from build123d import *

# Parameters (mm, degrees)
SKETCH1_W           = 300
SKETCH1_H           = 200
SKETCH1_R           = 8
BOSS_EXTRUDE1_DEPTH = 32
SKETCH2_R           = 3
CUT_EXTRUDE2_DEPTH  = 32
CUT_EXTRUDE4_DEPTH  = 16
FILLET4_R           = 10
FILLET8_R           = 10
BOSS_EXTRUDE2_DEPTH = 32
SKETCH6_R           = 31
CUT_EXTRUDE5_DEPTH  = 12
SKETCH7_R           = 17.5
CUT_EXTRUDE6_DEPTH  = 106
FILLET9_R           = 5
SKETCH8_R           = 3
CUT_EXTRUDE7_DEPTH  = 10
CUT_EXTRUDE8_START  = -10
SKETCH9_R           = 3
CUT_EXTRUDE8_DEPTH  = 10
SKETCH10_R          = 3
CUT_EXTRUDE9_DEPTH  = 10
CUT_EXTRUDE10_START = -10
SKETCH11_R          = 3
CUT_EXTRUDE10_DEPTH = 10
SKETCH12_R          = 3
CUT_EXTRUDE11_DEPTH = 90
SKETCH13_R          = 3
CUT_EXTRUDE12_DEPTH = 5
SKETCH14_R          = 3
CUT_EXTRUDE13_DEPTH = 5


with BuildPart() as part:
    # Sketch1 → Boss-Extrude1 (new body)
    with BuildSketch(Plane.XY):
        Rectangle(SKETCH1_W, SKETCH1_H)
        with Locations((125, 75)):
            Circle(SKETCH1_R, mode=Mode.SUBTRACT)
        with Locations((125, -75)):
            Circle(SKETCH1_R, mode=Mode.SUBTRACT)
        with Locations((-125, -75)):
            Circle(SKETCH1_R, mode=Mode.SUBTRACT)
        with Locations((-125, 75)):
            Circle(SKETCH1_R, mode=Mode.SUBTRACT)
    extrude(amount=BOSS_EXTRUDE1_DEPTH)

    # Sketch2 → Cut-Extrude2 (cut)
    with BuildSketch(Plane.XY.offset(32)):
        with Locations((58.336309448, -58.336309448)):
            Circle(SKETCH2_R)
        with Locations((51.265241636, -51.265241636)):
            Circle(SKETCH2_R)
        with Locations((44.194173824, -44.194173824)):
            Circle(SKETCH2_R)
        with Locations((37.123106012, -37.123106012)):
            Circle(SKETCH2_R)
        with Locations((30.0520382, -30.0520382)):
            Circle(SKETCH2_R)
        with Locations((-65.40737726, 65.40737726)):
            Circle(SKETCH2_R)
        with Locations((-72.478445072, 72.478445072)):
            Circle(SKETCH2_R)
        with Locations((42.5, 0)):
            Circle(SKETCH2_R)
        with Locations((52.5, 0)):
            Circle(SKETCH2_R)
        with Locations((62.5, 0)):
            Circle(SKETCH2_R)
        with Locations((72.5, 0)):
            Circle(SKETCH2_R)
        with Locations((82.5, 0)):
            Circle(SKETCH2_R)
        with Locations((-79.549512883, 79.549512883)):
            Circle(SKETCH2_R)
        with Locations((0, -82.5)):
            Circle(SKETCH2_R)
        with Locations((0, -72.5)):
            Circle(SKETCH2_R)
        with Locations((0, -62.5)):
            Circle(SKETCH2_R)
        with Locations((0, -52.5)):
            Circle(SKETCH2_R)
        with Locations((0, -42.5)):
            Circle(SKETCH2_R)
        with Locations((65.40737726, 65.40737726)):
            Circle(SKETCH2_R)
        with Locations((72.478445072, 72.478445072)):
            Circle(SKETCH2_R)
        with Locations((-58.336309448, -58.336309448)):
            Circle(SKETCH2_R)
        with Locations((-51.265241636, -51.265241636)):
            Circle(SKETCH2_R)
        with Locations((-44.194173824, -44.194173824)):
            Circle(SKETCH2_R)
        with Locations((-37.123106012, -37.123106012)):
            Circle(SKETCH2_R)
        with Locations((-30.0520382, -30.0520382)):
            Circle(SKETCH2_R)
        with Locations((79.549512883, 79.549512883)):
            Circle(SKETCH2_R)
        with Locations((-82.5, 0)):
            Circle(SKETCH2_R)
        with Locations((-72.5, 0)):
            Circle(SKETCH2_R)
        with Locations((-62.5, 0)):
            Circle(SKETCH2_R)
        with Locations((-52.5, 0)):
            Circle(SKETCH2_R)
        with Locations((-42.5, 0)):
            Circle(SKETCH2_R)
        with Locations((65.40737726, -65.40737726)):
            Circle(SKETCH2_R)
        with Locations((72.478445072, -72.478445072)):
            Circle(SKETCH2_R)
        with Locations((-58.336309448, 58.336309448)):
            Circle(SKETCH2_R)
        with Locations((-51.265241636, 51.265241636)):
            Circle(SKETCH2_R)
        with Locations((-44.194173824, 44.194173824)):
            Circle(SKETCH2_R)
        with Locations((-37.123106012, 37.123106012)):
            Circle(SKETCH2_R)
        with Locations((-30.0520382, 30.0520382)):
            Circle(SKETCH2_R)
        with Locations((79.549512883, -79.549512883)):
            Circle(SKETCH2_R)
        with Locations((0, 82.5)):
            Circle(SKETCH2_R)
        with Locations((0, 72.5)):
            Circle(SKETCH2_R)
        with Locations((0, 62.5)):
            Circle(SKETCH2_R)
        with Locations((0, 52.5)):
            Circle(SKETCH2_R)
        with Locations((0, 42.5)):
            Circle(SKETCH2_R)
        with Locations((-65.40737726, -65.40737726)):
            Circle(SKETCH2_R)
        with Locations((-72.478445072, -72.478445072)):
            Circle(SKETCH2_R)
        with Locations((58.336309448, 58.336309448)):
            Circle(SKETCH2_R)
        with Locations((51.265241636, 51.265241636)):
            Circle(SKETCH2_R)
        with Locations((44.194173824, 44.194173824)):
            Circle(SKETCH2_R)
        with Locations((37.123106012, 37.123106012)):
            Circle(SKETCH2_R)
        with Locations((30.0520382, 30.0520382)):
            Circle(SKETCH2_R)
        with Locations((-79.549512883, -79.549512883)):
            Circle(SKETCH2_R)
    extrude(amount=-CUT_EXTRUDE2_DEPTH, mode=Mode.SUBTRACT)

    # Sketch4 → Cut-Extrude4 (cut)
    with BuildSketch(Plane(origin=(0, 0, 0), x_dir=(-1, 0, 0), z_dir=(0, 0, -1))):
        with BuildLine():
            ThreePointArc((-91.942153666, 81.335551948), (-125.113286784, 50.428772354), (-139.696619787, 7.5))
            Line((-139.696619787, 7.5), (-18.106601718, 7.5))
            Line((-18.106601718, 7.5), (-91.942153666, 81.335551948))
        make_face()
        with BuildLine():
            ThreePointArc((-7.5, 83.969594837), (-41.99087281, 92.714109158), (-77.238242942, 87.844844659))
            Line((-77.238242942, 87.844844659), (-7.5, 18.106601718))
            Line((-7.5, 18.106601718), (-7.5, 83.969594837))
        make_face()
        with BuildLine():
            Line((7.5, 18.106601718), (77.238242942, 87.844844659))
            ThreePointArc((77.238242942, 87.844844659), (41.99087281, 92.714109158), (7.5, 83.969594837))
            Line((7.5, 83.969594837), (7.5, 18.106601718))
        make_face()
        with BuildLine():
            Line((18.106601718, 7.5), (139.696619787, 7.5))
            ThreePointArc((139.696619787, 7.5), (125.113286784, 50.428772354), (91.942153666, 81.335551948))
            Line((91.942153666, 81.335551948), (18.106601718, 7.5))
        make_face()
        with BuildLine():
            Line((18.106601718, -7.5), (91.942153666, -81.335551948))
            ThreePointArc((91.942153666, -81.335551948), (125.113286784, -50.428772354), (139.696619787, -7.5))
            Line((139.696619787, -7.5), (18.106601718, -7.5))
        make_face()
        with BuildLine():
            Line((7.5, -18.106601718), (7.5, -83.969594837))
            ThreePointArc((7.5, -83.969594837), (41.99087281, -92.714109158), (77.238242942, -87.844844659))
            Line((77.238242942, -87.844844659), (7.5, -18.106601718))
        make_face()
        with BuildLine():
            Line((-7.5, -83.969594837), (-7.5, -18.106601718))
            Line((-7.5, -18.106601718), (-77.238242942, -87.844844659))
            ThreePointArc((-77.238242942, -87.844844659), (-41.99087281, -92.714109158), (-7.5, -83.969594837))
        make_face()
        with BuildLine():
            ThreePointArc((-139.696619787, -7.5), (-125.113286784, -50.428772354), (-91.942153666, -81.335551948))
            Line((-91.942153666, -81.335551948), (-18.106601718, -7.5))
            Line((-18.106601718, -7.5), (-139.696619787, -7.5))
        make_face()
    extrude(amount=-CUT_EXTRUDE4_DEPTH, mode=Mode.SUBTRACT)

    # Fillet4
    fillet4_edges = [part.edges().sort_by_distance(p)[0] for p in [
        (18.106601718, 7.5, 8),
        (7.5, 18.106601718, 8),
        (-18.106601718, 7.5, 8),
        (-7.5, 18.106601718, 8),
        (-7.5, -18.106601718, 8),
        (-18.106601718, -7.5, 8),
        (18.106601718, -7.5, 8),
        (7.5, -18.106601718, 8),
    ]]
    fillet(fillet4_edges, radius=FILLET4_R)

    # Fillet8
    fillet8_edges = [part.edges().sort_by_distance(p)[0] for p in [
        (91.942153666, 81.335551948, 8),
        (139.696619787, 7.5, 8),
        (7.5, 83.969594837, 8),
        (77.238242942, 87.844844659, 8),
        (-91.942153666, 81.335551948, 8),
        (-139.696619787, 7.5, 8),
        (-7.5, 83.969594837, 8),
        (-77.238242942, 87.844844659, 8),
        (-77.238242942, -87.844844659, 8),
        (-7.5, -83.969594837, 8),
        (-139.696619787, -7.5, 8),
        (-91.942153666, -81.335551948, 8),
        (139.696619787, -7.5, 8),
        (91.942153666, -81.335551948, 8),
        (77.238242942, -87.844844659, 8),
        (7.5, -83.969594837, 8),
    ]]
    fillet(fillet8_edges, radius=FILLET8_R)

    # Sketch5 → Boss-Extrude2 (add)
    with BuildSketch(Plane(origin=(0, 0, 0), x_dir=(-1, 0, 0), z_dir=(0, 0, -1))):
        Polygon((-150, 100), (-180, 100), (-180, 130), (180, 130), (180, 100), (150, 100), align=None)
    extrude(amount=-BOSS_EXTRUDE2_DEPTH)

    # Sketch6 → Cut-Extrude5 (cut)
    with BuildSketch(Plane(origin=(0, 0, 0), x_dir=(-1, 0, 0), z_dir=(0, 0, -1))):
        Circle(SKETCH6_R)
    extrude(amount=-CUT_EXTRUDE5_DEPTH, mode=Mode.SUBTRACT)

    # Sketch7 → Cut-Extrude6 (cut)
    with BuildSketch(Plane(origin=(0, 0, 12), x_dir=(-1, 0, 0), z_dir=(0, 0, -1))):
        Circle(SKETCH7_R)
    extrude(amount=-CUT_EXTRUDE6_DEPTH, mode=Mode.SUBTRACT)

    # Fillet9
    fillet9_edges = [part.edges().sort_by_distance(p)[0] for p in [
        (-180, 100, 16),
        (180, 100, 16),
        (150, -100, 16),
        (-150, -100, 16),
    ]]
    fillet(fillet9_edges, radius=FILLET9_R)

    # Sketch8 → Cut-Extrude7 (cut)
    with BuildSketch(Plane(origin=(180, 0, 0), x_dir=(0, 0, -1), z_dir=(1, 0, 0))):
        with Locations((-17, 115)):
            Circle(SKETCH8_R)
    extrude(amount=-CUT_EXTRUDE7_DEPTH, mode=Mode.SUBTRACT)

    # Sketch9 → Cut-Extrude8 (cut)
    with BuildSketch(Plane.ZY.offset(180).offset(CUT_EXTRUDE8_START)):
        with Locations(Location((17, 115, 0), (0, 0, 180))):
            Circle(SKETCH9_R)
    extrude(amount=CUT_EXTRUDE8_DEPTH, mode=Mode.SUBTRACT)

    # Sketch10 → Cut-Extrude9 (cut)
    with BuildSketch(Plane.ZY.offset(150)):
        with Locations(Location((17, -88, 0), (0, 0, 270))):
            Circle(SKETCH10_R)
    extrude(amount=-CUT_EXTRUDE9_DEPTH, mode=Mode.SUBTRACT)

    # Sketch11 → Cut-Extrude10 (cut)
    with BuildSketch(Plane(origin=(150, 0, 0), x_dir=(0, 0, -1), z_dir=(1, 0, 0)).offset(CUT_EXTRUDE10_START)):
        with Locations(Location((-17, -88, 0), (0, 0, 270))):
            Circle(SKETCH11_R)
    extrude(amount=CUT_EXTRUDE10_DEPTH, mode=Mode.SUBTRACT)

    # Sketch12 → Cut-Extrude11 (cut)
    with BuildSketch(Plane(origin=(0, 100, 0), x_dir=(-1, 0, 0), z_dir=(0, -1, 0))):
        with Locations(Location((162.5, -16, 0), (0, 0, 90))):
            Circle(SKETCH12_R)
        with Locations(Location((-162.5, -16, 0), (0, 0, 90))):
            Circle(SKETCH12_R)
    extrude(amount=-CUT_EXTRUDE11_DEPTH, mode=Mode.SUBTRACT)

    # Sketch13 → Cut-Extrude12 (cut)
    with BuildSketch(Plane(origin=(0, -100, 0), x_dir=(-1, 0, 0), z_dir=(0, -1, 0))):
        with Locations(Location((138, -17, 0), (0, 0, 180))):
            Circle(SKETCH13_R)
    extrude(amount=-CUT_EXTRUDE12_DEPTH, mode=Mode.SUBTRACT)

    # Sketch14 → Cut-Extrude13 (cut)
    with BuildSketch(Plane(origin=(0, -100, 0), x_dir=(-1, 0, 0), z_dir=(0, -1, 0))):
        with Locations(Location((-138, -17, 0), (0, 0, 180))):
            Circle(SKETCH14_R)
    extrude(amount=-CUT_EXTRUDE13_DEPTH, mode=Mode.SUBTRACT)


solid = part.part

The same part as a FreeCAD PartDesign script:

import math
import FreeCAD as App
import Part
import Sketcher
from FreeCAD import Vector


def edges_at(feature, points):
    """Names of the edges that pass closest to the given points."""
    edges = feature.Shape.Edges
    near = lambda p: min(range(len(edges)), key=lambda i: edges[i].distToShape(Part.Vertex(*p))[0])
    return sorted({f"Edge{near(p) + 1}" for p in points})

doc = App.newDocument("Part")
body = doc.addObject("PartDesign::Body", "Body")

# Sketch on XY plane
sketch1 = body.newObject("Sketcher::SketchObject", "Sketch")
sketch1.AttachmentSupport = (doc.getObject("XY_Plane"), [""])
sketch1.MapMode = "FlatFace"
sketch1.addGeometry([
    Part.LineSegment(Vector(-150, 100, 0), Vector(-150, -100, 0)),  # 0
    Part.LineSegment(Vector(-150, -100, 0), Vector(150, -100, 0)),  # 1
    Part.LineSegment(Vector(150, -100, 0), Vector(150, 100, 0)),  # 2
    Part.LineSegment(Vector(150, 100, 0), Vector(-150, 100, 0)),  # 3
    Part.Circle(Vector(-125, -75, 0), Vector(0, 0, 1), 8),  # 4
    Part.Circle(Vector(125, -75, 0), Vector(0, 0, 1), 8),  # 5
    Part.Circle(Vector(-125, 75, 0), Vector(0, 0, 1), 8),  # 6
    Part.Circle(Vector(125, 75, 0), Vector(0, 0, 1), 8),  # 7
], False)
sketch1.addConstraint([
    Sketcher.Constraint("Coincident", 0, 2, 1, 1),
    Sketcher.Constraint("Coincident", 1, 2, 2, 1),
    Sketcher.Constraint("Coincident", 2, 2, 3, 1),
    Sketcher.Constraint("Coincident", 3, 2, 0, 1),
    Sketcher.Constraint("Vertical", 0),
    Sketcher.Constraint("Horizontal", 1),
    Sketcher.Constraint("Vertical", 2),
    Sketcher.Constraint("Horizontal", 3),
    Sketcher.Constraint("Equal", 4, 5),
    Sketcher.Constraint("Equal", 5, 6),
    Sketcher.Constraint("Equal", 6, 7),
    Sketcher.Constraint("Symmetric", 5, 3, 6, 3, -1, 1),
    Sketcher.Constraint("Symmetric", 4, 3, 7, 3, -1, 1),
    Sketcher.Constraint("Symmetric", 0, 2, 2, 2, -1, 1),
    Sketcher.Constraint("Symmetric", 4, 3, 5, 3, -2),
    Sketcher.Constraint("Diameter", 4, 16.0),
    Sketcher.Constraint("DistanceX", 1, 1, 1, 2, 300.0),
    Sketcher.Constraint("DistanceY", 0, 2, 0, 1, 200.0),
    Sketcher.Constraint("DistanceX", 4, 3, -1, 1, 125.0),
    Sketcher.Constraint("DistanceY", 4, 3, -1, 1, 75.0),
])
pad1 = body.newObject("PartDesign::Pad", "Pad")
pad1.Profile = sketch1
pad1.Length = 32

# Sketch on XY plane
sketch2 = body.newObject("Sketcher::SketchObject", "Sketch001")
sketch2.AttachmentSupport = (doc.getObject("XY_Plane"), [""])
sketch2.MapMode = "FlatFace"
sketch2.AttachmentOffset = App.Placement(Vector(0, 0, 32), App.Rotation())
sketch2.addGeometry([
    Part.Circle(Vector(58.336309, -58.336309, 0), Vector(0, 0, 1), 3),  # 0
    Part.Circle(Vector(51.265242, -51.265242, 0), Vector(0, 0, 1), 3),  # 1
    Part.Circle(Vector(44.194174, -44.194174, 0), Vector(0, 0, 1), 3),  # 2
    Part.Circle(Vector(37.123106, -37.123106, 0), Vector(0, 0, 1), 3),  # 3
    Part.Circle(Vector(30.052038, -30.052038, 0), Vector(0, 0, 1), 3),  # 4
    Part.Circle(Vector(-65.407377, 65.407377, 0), Vector(0, 0, 1), 3),  # 5
    Part.Circle(Vector(-72.478445, 72.478445, 0), Vector(0, 0, 1), 3),  # 6
    Part.Circle(Vector(42.5, 0, 0), Vector(0, 0, 1), 3),  # 7
    Part.Circle(Vector(52.5, 0, 0), Vector(0, 0, 1), 3),  # 8
    Part.Circle(Vector(62.5, 0, 0), Vector(0, 0, 1), 3),  # 9
    Part.Circle(Vector(72.5, 0, 0), Vector(0, 0, 1), 3),  # 10
    Part.Circle(Vector(82.5, 0, 0), Vector(0, 0, 1), 3),  # 11
    Part.Circle(Vector(-79.549513, 79.549513, 0), Vector(0, 0, 1), 3),  # 12
    Part.Circle(Vector(0, -82.5, 0), Vector(0, 0, 1), 3),  # 13
    Part.Circle(Vector(0, -72.5, 0), Vector(0, 0, 1), 3),  # 14
    Part.Circle(Vector(0, -62.5, 0), Vector(0, 0, 1), 3),  # 15
    Part.Circle(Vector(0, -52.5, 0), Vector(0, 0, 1), 3),  # 16
    Part.Circle(Vector(0, -42.5, 0), Vector(0, 0, 1), 3),  # 17
    Part.Circle(Vector(65.407377, 65.407377, 0), Vector(0, 0, 1), 3),  # 18
    Part.Circle(Vector(72.478445, 72.478445, 0), Vector(0, 0, 1), 3),  # 19
    Part.Circle(Vector(-58.336309, -58.336309, 0), Vector(0, 0, 1), 3),  # 20
    Part.Circle(Vector(-51.265242, -51.265242, 0), Vector(0, 0, 1), 3),  # 21
    Part.Circle(Vector(-44.194174, -44.194174, 0), Vector(0, 0, 1), 3),  # 22
    Part.Circle(Vector(-37.123106, -37.123106, 0), Vector(0, 0, 1), 3),  # 23
    Part.Circle(Vector(-30.052038, -30.052038, 0), Vector(0, 0, 1), 3),  # 24
    Part.Circle(Vector(79.549513, 79.549513, 0), Vector(0, 0, 1), 3),  # 25
    Part.Circle(Vector(-82.5, 0, 0), Vector(0, 0, 1), 3),  # 26
    Part.Circle(Vector(-72.5, 0, 0), Vector(0, 0, 1), 3),  # 27
    Part.Circle(Vector(-62.5, 0, 0), Vector(0, 0, 1), 3),  # 28
    Part.Circle(Vector(-52.5, 0, 0), Vector(0, 0, 1), 3),  # 29
    Part.Circle(Vector(-42.5, 0, 0), Vector(0, 0, 1), 3),  # 30
    Part.Circle(Vector(65.407377, -65.407377, 0), Vector(0, 0, 1), 3),  # 31
    Part.Circle(Vector(72.478445, -72.478445, 0), Vector(0, 0, 1), 3),  # 32
    Part.Circle(Vector(-58.336309, 58.336309, 0), Vector(0, 0, 1), 3),  # 33
    Part.Circle(Vector(-51.265242, 51.265242, 0), Vector(0, 0, 1), 3),  # 34
    Part.Circle(Vector(-44.194174, 44.194174, 0), Vector(0, 0, 1), 3),  # 35
    Part.Circle(Vector(-37.123106, 37.123106, 0), Vector(0, 0, 1), 3),  # 36
    Part.Circle(Vector(-30.052038, 30.052038, 0), Vector(0, 0, 1), 3),  # 37
    Part.Circle(Vector(79.549513, -79.549513, 0), Vector(0, 0, 1), 3),  # 38
    Part.Circle(Vector(0, 82.5, 0), Vector(0, 0, 1), 3),  # 39
    Part.Circle(Vector(0, 72.5, 0), Vector(0, 0, 1), 3),  # 40
    Part.Circle(Vector(0, 62.5, 0), Vector(0, 0, 1), 3),  # 41
    Part.Circle(Vector(0, 52.5, 0), Vector(0, 0, 1), 3),  # 42
    Part.Circle(Vector(0, 42.5, 0), Vector(0, 0, 1), 3),  # 43
    Part.Circle(Vector(-65.407377, -65.407377, 0), Vector(0, 0, 1), 3),  # 44
    Part.Circle(Vector(-72.478445, -72.478445, 0), Vector(0, 0, 1), 3),  # 45
    Part.Circle(Vector(58.336309, 58.336309, 0), Vector(0, 0, 1), 3),  # 46
    Part.Circle(Vector(51.265242, 51.265242, 0), Vector(0, 0, 1), 3),  # 47
    Part.Circle(Vector(44.194174, 44.194174, 0), Vector(0, 0, 1), 3),  # 48
    Part.Circle(Vector(37.123106, 37.123106, 0), Vector(0, 0, 1), 3),  # 49
    Part.Circle(Vector(30.052038, 30.052038, 0), Vector(0, 0, 1), 3),  # 50
    Part.Circle(Vector(-79.549513, -79.549513, 0), Vector(0, 0, 1), 3),  # 51
], False)
sketch2.addConstraint([
    Sketcher.Constraint("Equal", 0, 1),
    Sketcher.Constraint("Equal", 1, 2),
    Sketcher.Constraint("Equal", 2, 3),
    Sketcher.Constraint("Equal", 3, 4),
    Sketcher.Constraint("Equal", 4, 5),
    Sketcher.Constraint("Equal", 5, 6),
    Sketcher.Constraint("Equal", 6, 7),
    Sketcher.Constraint("Equal", 7, 8),
    Sketcher.Constraint("Equal", 8, 9),
    Sketcher.Constraint("Equal", 9, 10),
    Sketcher.Constraint("Equal", 10, 11),
    Sketcher.Constraint("Equal", 11, 12),
    Sketcher.Constraint("Equal", 12, 13),
    Sketcher.Constraint("Equal", 13, 14),
    Sketcher.Constraint("Equal", 14, 15),
    Sketcher.Constraint("Equal", 15, 16),
    Sketcher.Constraint("Equal", 16, 17),
    Sketcher.Constraint("Equal", 17, 18),
    Sketcher.Constraint("Equal", 18, 19),
    Sketcher.Constraint("Equal", 19, 20),
    Sketcher.Constraint("Equal", 20, 21),
    Sketcher.Constraint("Equal", 21, 22),
    Sketcher.Constraint("Equal", 22, 23),
    Sketcher.Constraint("Equal", 23, 24),
    Sketcher.Constraint("Equal", 24, 25),
    Sketcher.Constraint("Equal", 25, 26),
    Sketcher.Constraint("Equal", 26, 27),
    Sketcher.Constraint("Equal", 27, 28),
    Sketcher.Constraint("Equal", 28, 29),
    Sketcher.Constraint("Equal", 29, 30),
    Sketcher.Constraint("Equal", 30, 31),
    Sketcher.Constraint("Equal", 31, 32),
    Sketcher.Constraint("Equal", 32, 33),
    Sketcher.Constraint("Equal", 33, 34),
    Sketcher.Constraint("Equal", 34, 35),
    Sketcher.Constraint("Equal", 35, 36),
    Sketcher.Constraint("Equal", 36, 37),
    Sketcher.Constraint("Equal", 37, 38),
    Sketcher.Constraint("Equal", 38, 39),
    Sketcher.Constraint("Equal", 39, 40),
    Sketcher.Constraint("Equal", 40, 41),
    Sketcher.Constraint("Equal", 41, 42),
    Sketcher.Constraint("Equal", 42, 43),
    Sketcher.Constraint("Equal", 43, 44),
    Sketcher.Constraint("Equal", 44, 45),
    Sketcher.Constraint("Equal", 45, 46),
    Sketcher.Constraint("Equal", 46, 47),
    Sketcher.Constraint("Equal", 47, 48),
    Sketcher.Constraint("Equal", 48, 49),
    Sketcher.Constraint("Equal", 49, 50),
    Sketcher.Constraint("Equal", 50, 51),
    Sketcher.Constraint("Symmetric", 11, 3, 26, 3, -1, 1),
    Sketcher.Constraint("Symmetric", 10, 3, 27, 3, -1, 1),
    Sketcher.Constraint("Symmetric", 9, 3, 28, 3, -1, 1),
    Sketcher.Constraint("Symmetric", 8, 3, 29, 3, -1, 1),
    Sketcher.Constraint("Symmetric", 7, 3, 30, 3, -1, 1),
    Sketcher.Constraint("Symmetric", 5, 3, 31, 3, -1, 1),
    Sketcher.Constraint("Symmetric", 6, 3, 32, 3, -1, 1),
    Sketcher.Constraint("Symmetric", 0, 3, 33, 3, -1, 1),
    Sketcher.Constraint("Symmetric", 1, 3, 34, 3, -1, 1),
    Sketcher.Constraint("Symmetric", 2, 3, 35, 3, -1, 1),
    Sketcher.Constraint("Symmetric", 3, 3, 36, 3, -1, 1),
    Sketcher.Constraint("Symmetric", 4, 3, 37, 3, -1, 1),
    Sketcher.Constraint("Symmetric", 12, 3, 38, 3, -1, 1),
    Sketcher.Constraint("Symmetric", 13, 3, 39, 3, -1, 1),
    Sketcher.Constraint("Symmetric", 14, 3, 40, 3, -1, 1),
    Sketcher.Constraint("Symmetric", 15, 3, 41, 3, -1, 1),
    Sketcher.Constraint("Symmetric", 16, 3, 42, 3, -1, 1),
    Sketcher.Constraint("Symmetric", 17, 3, 43, 3, -1, 1),
    Sketcher.Constraint("Symmetric", 18, 3, 44, 3, -1, 1),
    Sketcher.Constraint("Symmetric", 19, 3, 45, 3, -1, 1),
    Sketcher.Constraint("Symmetric", 20, 3, 46, 3, -1, 1),
    Sketcher.Constraint("Symmetric", 21, 3, 47, 3, -1, 1),
    Sketcher.Constraint("Symmetric", 22, 3, 48, 3, -1, 1),
    Sketcher.Constraint("Symmetric", 23, 3, 49, 3, -1, 1),
    Sketcher.Constraint("Symmetric", 24, 3, 50, 3, -1, 1),
    Sketcher.Constraint("Symmetric", 25, 3, 51, 3, -1, 1),
    Sketcher.Constraint("Symmetric", 5, 3, 18, 3, -2),
    Sketcher.Constraint("Symmetric", 6, 3, 19, 3, -2),
    Sketcher.Constraint("Symmetric", 0, 3, 20, 3, -2),
    Sketcher.Constraint("Symmetric", 1, 3, 21, 3, -2),
    Sketcher.Constraint("Symmetric", 2, 3, 22, 3, -2),
    Sketcher.Constraint("Symmetric", 3, 3, 23, 3, -2),
    Sketcher.Constraint("Symmetric", 4, 3, 24, 3, -2),
    Sketcher.Constraint("Symmetric", 12, 3, 25, 3, -2),
    Sketcher.Constraint("PointOnObject", 7, 3, -1),
    Sketcher.Constraint("PointOnObject", 8, 3, -1),
    Sketcher.Constraint("PointOnObject", 9, 3, -1),
    Sketcher.Constraint("PointOnObject", 10, 3, -1),
    Sketcher.Constraint("PointOnObject", 11, 3, -1),
    Sketcher.Constraint("PointOnObject", 13, 3, -2),
    Sketcher.Constraint("PointOnObject", 14, 3, -2),
    Sketcher.Constraint("PointOnObject", 15, 3, -2),
    Sketcher.Constraint("PointOnObject", 16, 3, -2),
    Sketcher.Constraint("PointOnObject", 17, 3, -2),
    Sketcher.Constraint("Diameter", 0, 6.0),
    Sketcher.Constraint("DistanceX", 7, 3, 8, 3, 10.0),
    Sketcher.Constraint("DistanceX", 8, 3, 9, 3, 10.0),
    Sketcher.Constraint("DistanceX", 9, 3, 10, 3, 10.0),
    Sketcher.Constraint("DistanceX", 10, 3, 11, 3, 10.0),
    Sketcher.Constraint("DistanceY", 13, 3, 14, 3, 10.0),
    Sketcher.Constraint("DistanceY", 14, 3, 15, 3, 10.0),
    Sketcher.Constraint("DistanceY", 15, 3, 16, 3, 10.0),
    Sketcher.Constraint("DistanceY", 16, 3, 17, 3, 10.0),
    Sketcher.Constraint("DistanceX", -1, 1, 7, 3, 42.5),
    Sketcher.Constraint("DistanceY", 13, 3, -1, 1, 82.5),
    Sketcher.Constraint("DistanceX", -1, 1, 0, 3, 58.336309),
    Sketcher.Constraint("DistanceY", 0, 3, -1, 1, 58.336309),
    Sketcher.Constraint("DistanceX", -1, 1, 1, 3, 51.265242),
    Sketcher.Constraint("DistanceY", 1, 3, -1, 1, 51.265242),
    Sketcher.Constraint("DistanceX", -1, 1, 4, 3, 30.052038),
    Sketcher.Constraint("DistanceY", 4, 3, -1, 1, 30.052038),
    Sketcher.Constraint("DistanceX", 5, 3, 2, 3, 109.601551),
    Sketcher.Constraint("DistanceY", 2, 3, 5, 3, 109.601551),
    Sketcher.Constraint("DistanceX", 5, 3, 1, 3, 116.672619),
    Sketcher.Constraint("DistanceY", 1, 3, 5, 3, 116.672619),
    Sketcher.Constraint("DistanceX", 6, 3, 3, 3, 109.601551),
    Sketcher.Constraint("DistanceY", 3, 3, 6, 3, 109.601551),
    Sketcher.Constraint("DistanceX", 6, 3, 2, 3, 116.672619),
    Sketcher.Constraint("DistanceY", 2, 3, 6, 3, 116.672619),
    Sketcher.Constraint("DistanceX", 12, 3, 4, 3, 109.601551),
    Sketcher.Constraint("DistanceY", 4, 3, 12, 3, 109.601551),
])
pocket1 = body.newObject("PartDesign::Pocket", "Pocket")
pocket1.Profile = sketch2
pocket1.Length = 32

# Sketch on XY plane
sketch3 = body.newObject("Sketcher::SketchObject", "Sketch002")
sketch3.AttachmentSupport = (doc.getObject("XY_Plane"), [""])
sketch3.MapMode = "FlatFace"
sketch3.addGeometry([
    Part.ArcOfCircle(Part.Circle(Vector(47.142857, 0, 0), Vector(0, 0, 1), 92.857143), math.radians(4.632783), math.radians(61.154203)),  # 0
    Part.LineSegment(Vector(139.69662, 7.5, 0), Vector(18.106602, 7.5, 0)),  # 1
    Part.LineSegment(Vector(18.106602, 7.5, 0), Vector(91.942154, 81.335552, 0)),  # 2
    Part.ArcOfCircle(Part.Circle(Vector(47.142857, 0, 0), Vector(0, 0, 1), 92.857143), math.radians(71.088691), math.radians(115.272449)),  # 3
    Part.LineSegment(Vector(77.238243, 87.844845, 0), Vector(7.5, 18.106602, 0)),  # 4
    Part.LineSegment(Vector(7.5, 18.106602, 0), Vector(7.5, 83.969595, 0)),  # 5
    Part.LineSegment(Vector(-7.5, 18.106602, 0), Vector(-77.238243, 87.844845, 0)),  # 6
    Part.ArcOfCircle(Part.Circle(Vector(-47.142857, 0, 0), Vector(0, 0, 1), 92.857143), math.radians(64.727551), math.radians(108.911309)),  # 7
    Part.LineSegment(Vector(-7.5, 83.969595, 0), Vector(-7.5, 18.106602, 0)),  # 8
    Part.LineSegment(Vector(-18.106602, 7.5, 0), Vector(-139.69662, 7.5, 0)),  # 9
    Part.ArcOfCircle(Part.Circle(Vector(-47.142857, 0, 0), Vector(0, 0, 1), 92.857143), math.radians(118.845797), math.radians(175.367217)),  # 10
    Part.LineSegment(Vector(-91.942154, 81.335552, 0), Vector(-18.106602, 7.5, 0)),  # 11
    Part.LineSegment(Vector(-18.106602, -7.5, 0), Vector(-91.942154, -81.335552, 0)),  # 12
    Part.ArcOfCircle(Part.Circle(Vector(-47.142857, 0, 0), Vector(0, 0, 1), 92.857143), math.radians(-175.367217), math.radians(-118.845797)),  # 13
    Part.LineSegment(Vector(-139.69662, -7.5, 0), Vector(-18.106602, -7.5, 0)),  # 14
    Part.LineSegment(Vector(-7.5, -18.106602, 0), Vector(-7.5, -83.969595, 0)),  # 15
    Part.ArcOfCircle(Part.Circle(Vector(-47.142857, 0, 0), Vector(0, 0, 1), 92.857143), math.radians(-108.911309), math.radians(-64.727551)),  # 16
    Part.LineSegment(Vector(-77.238243, -87.844845, 0), Vector(-7.5, -18.106602, 0)),  # 17
    Part.LineSegment(Vector(7.5, -83.969595, 0), Vector(7.5, -18.106602, 0)),  # 18
    Part.LineSegment(Vector(7.5, -18.106602, 0), Vector(77.238243, -87.844845, 0)),  # 19
    Part.ArcOfCircle(Part.Circle(Vector(47.142857, 0, 0), Vector(0, 0, 1), 92.857143), math.radians(-115.272449), math.radians(-71.088691)),  # 20
    Part.ArcOfCircle(Part.Circle(Vector(47.142857, 0, 0), Vector(0, 0, 1), 92.857143), math.radians(-61.154203), math.radians(-4.632783)),  # 21
    Part.LineSegment(Vector(91.942154, -81.335552, 0), Vector(18.106602, -7.5, 0)),  # 22
    Part.LineSegment(Vector(18.106602, -7.5, 0), Vector(139.69662, -7.5, 0)),  # 23
], False)
sketch3.addConstraint([
    Sketcher.Constraint("Coincident", 0, 1, 1, 1),
    Sketcher.Constraint("Coincident", 1, 2, 2, 1),
    Sketcher.Constraint("Coincident", 2, 2, 0, 2),
    Sketcher.Constraint("Coincident", 3, 1, 4, 1),
    Sketcher.Constraint("Coincident", 4, 2, 5, 1),
    Sketcher.Constraint("Coincident", 5, 2, 3, 2),
    Sketcher.Constraint("Coincident", 6, 2, 7, 2),
    Sketcher.Constraint("Coincident", 7, 1, 8, 1),
    Sketcher.Constraint("Coincident", 8, 2, 6, 1),
    Sketcher.Constraint("Coincident", 9, 2, 10, 2),
    Sketcher.Constraint("Coincident", 10, 1, 11, 1),
    Sketcher.Constraint("Coincident", 11, 2, 9, 1),
    Sketcher.Constraint("Coincident", 12, 2, 13, 2),
    Sketcher.Constraint("Coincident", 13, 1, 14, 1),
    Sketcher.Constraint("Coincident", 14, 2, 12, 1),
    Sketcher.Constraint("Coincident", 15, 2, 16, 2),
    Sketcher.Constraint("Coincident", 16, 1, 17, 1),
    Sketcher.Constraint("Coincident", 17, 2, 15, 1),
    Sketcher.Constraint("Coincident", 18, 2, 19, 1),
    Sketcher.Constraint("Coincident", 19, 2, 20, 2),
    Sketcher.Constraint("Coincident", 20, 1, 18, 1),
    Sketcher.Constraint("Coincident", 21, 1, 22, 1),
    Sketcher.Constraint("Coincident", 22, 2, 23, 1),
    Sketcher.Constraint("Coincident", 23, 2, 21, 2),
    Sketcher.Constraint("Horizontal", 1),
    Sketcher.Constraint("Vertical", 5),
    Sketcher.Constraint("Vertical", 8),
    Sketcher.Constraint("Horizontal", 9),
    Sketcher.Constraint("Horizontal", 14),
    Sketcher.Constraint("Vertical", 15),
    Sketcher.Constraint("Vertical", 18),
    Sketcher.Constraint("Horizontal", 23),
    Sketcher.Constraint("Coincident", 3, 3, 0, 3),
    Sketcher.Constraint("Coincident", 10, 3, 7, 3),
    Sketcher.Constraint("Coincident", 13, 3, 7, 3),
    Sketcher.Constraint("Coincident", 16, 3, 7, 3),
    Sketcher.Constraint("Coincident", 20, 3, 0, 3),
    Sketcher.Constraint("Coincident", 21, 3, 0, 3),
    Sketcher.Constraint("Equal", 0, 3),
    Sketcher.Constraint("Equal", 3, 7),
    Sketcher.Constraint("Equal", 7, 10),
    Sketcher.Constraint("Equal", 10, 13),
    Sketcher.Constraint("Equal", 13, 16),
    Sketcher.Constraint("Equal", 16, 20),
    Sketcher.Constraint("Equal", 20, 21),
    Sketcher.Constraint("Symmetric", 0, 3, 7, 3, -1, 1),
    Sketcher.Constraint("Symmetric", 1, 2, 14, 2, -1, 1),
    Sketcher.Constraint("Symmetric", 4, 2, 17, 2, -1, 1),
    Sketcher.Constraint("Symmetric", 8, 2, 18, 2, -1, 1),
    Sketcher.Constraint("Symmetric", 11, 2, 22, 2, -1, 1),
    Sketcher.Constraint("Symmetric", 3, 1, 6, 2, -2),
    Sketcher.Constraint("Symmetric", 4, 2, 8, 2, -2),
    Sketcher.Constraint("Symmetric", 1, 2, 11, 2, -2),
    Sketcher.Constraint("Parallel", 2, 4),
    Sketcher.Constraint("Perpendicular", 4, 6),
    Sketcher.Constraint("Parallel", 6, 11),
    Sketcher.Constraint("Perpendicular", 11, 12),
    Sketcher.Constraint("Parallel", 12, 17),
    Sketcher.Constraint("Perpendicular", 17, 19),
    Sketcher.Constraint("Parallel", 19, 22),
    Sketcher.Constraint("DistanceX", 7, 1, 5, 2, 15.0),
    Sketcher.Constraint("DistanceY", 13, 1, 9, 2, 15.0),
    Sketcher.Constraint("Radius", 0, 92.857143),
    Sketcher.Constraint("DistanceX", 1, 2, 1, 1, 121.590018),
    Sketcher.Constraint("DistanceX", -1, 1, 1, 2, 18.106602),
    Sketcher.Constraint("DistanceY", -1, 1, 4, 2, 18.106602),
])
pocket2 = body.newObject("PartDesign::Pocket", "Pocket001")
pocket2.Profile = sketch3
pocket2.Length = 16
pocket2.Reversed = True
doc.recompute()

fillet = body.newObject("PartDesign::Fillet", "Fillet")
fillet.Base = (pocket2, edges_at(pocket2, [
    (18.107, 7.5, 8),
    (7.5, 18.107, 8),
    (-18.107, 7.5, 8),
    (-7.5, 18.107, 8),
    (-7.5, -18.107, 8),
    (-18.107, -7.5, 8),
    (18.107, -7.5, 8),
    (7.5, -18.107, 8),
]))
fillet.Radius = 10
doc.recompute()

fillet2 = body.newObject("PartDesign::Fillet", "Fillet001")
fillet2.Base = (fillet, edges_at(fillet, [
    (91.942, 81.336, 8),
    (139.697, 7.5, 8),
    (7.5, 83.97, 8),
    (77.238, 87.845, 8),
    (-91.942, 81.336, 8),
    (-139.697, 7.5, 8),
    (-7.5, 83.97, 8),
    (-77.238, 87.845, 8),
    (-77.238, -87.845, 8),
    (-7.5, -83.97, 8),
    (-139.697, -7.5, 8),
    (-91.942, -81.336, 8),
    (139.697, -7.5, 8),
    (91.942, -81.336, 8),
    (77.238, -87.845, 8),
    (7.5, -83.97, 8),
]))
fillet2.Radius = 10

# Sketch on XY plane
sketch4 = body.newObject("Sketcher::SketchObject", "Sketch003")
sketch4.AttachmentSupport = (doc.getObject("XY_Plane"), [""])
sketch4.MapMode = "FlatFace"
sketch4.addGeometry([
    Part.LineSegment(Vector(180, 100, 0), Vector(-180, 100, 0)),
    Part.LineSegment(Vector(-180, 100, 0), Vector(-180, 130, 0)),
    Part.LineSegment(Vector(-180, 130, 0), Vector(180, 130, 0)),
    Part.LineSegment(Vector(180, 130, 0), Vector(180, 100, 0)),
], False)
sketch4.addConstraint([
    Sketcher.Constraint("Coincident", 0, 2, 1, 1),
    Sketcher.Constraint("Coincident", 1, 2, 2, 1),
    Sketcher.Constraint("Coincident", 2, 2, 3, 1),
    Sketcher.Constraint("Coincident", 3, 2, 0, 1),
    Sketcher.Constraint("Horizontal", 0),
    Sketcher.Constraint("Vertical", 1),
    Sketcher.Constraint("Horizontal", 2),
    Sketcher.Constraint("Vertical", 3),
    Sketcher.Constraint("DistanceX", 0, 2, 0, 1, 360.0),
    Sketcher.Constraint("DistanceY", 1, 1, 1, 2, 30.0),
    Sketcher.Constraint("DistanceX", 0, 2, -1, 1, 180.0),
    Sketcher.Constraint("DistanceY", -1, 1, 0, 2, 100.0),
])
pad2 = body.newObject("PartDesign::Pad", "Pad001")
pad2.Profile = sketch4
pad2.Length = 32

# Sketch on XY plane
sketch5 = body.newObject("Sketcher::SketchObject", "Sketch004")
sketch5.AttachmentSupport = (doc.getObject("XY_Plane"), [""])
sketch5.MapMode = "FlatFace"
sketch5.addGeometry(Part.Circle(Vector(0, 0, 0), Vector(0, 0, 1), 31), False)
sketch5.addConstraint([
    Sketcher.Constraint("Coincident", 0, 3, -1, 1),
    Sketcher.Constraint("Diameter", 0, 62.0),
])
pocket3 = body.newObject("PartDesign::Pocket", "Pocket002")
pocket3.Profile = sketch5
pocket3.Length = 12
pocket3.Reversed = True

# Sketch on XY plane
sketch6 = body.newObject("Sketcher::SketchObject", "Sketch005")
sketch6.AttachmentSupport = (doc.getObject("XY_Plane"), [""])
sketch6.MapMode = "FlatFace"
sketch6.AttachmentOffset = App.Placement(Vector(0, 0, 12), App.Rotation())
sketch6.addGeometry(Part.Circle(Vector(0, 0, 0), Vector(0, 0, 1), 17.5), False)
sketch6.addConstraint([
    Sketcher.Constraint("Coincident", 0, 3, -1, 1),
    Sketcher.Constraint("Diameter", 0, 35.0),
])
pocket4 = body.newObject("PartDesign::Pocket", "Pocket003")
pocket4.Profile = sketch6
pocket4.Length = 106
pocket4.Reversed = True
doc.recompute()

fillet3 = body.newObject("PartDesign::Fillet", "Fillet002")
fillet3.Base = (pocket4, edges_at(pocket4, [
    (-180, 100, 16),
    (180, 100, 16),
    (150, -100, 16),
    (-150, -100, 16),
]))
fillet3.Radius = 5

# Sketch on YZ plane
sketch7 = body.newObject("Sketcher::SketchObject", "Sketch006")
sketch7.AttachmentSupport = (doc.getObject("YZ_Plane"), [""])
sketch7.MapMode = "FlatFace"
sketch7.AttachmentOffset = App.Placement(Vector(0, 0, 180), App.Rotation())
sketch7.addGeometry(Part.Circle(Vector(115, 17, 0), Vector(0, 0, 1), 3), False)
sketch7.addConstraint([
    Sketcher.Constraint("Diameter", 0, 6.0),
    Sketcher.Constraint("DistanceX", -1, 1, 0, 3, 115.0),
    Sketcher.Constraint("DistanceY", -1, 1, 0, 3, 17.0),
])
pocket5 = body.newObject("PartDesign::Pocket", "Pocket004")
pocket5.Profile = sketch7
pocket5.Length = 10

# Sketch on YZ plane
sketch8 = body.newObject("Sketcher::SketchObject", "Sketch007")
sketch8.AttachmentSupport = (doc.getObject("YZ_Plane"), [""])
sketch8.MapMode = "FlatFace"
sketch8.AttachmentOffset = App.Placement(Vector(0, 0, -170), App.Rotation())
sketch8.addGeometry(Part.Circle(Vector(115, 17, 0), Vector(0, 0, 1), 3), False)
sketch8.addConstraint([
    Sketcher.Constraint("Diameter", 0, 6.0),
    Sketcher.Constraint("DistanceX", -1, 1, 0, 3, 115.0),
    Sketcher.Constraint("DistanceY", -1, 1, 0, 3, 17.0),
])
pocket6 = body.newObject("PartDesign::Pocket", "Pocket005")
pocket6.Profile = sketch8
pocket6.Length = 10

# Sketch on YZ plane
sketch9 = body.newObject("Sketcher::SketchObject", "Sketch008")
sketch9.AttachmentSupport = (doc.getObject("YZ_Plane"), [""])
sketch9.MapMode = "FlatFace"
sketch9.AttachmentOffset = App.Placement(Vector(0, 0, -150), App.Rotation())
sketch9.addGeometry(Part.Circle(Vector(-88, 17, 0), Vector(0, 0, 1), 3), False)
sketch9.addConstraint([
    Sketcher.Constraint("Diameter", 0, 6.0),
    Sketcher.Constraint("DistanceX", 0, 3, -1, 1, 88.0),
    Sketcher.Constraint("DistanceY", -1, 1, 0, 3, 17.0),
])
pocket7 = body.newObject("PartDesign::Pocket", "Pocket006")
pocket7.Profile = sketch9
pocket7.Length = 10
pocket7.Reversed = True

# Sketch on YZ plane
sketch10 = body.newObject("Sketcher::SketchObject", "Sketch009")
sketch10.AttachmentSupport = (doc.getObject("YZ_Plane"), [""])
sketch10.MapMode = "FlatFace"
sketch10.AttachmentOffset = App.Placement(Vector(0, 0, 140), App.Rotation())
sketch10.addGeometry(Part.Circle(Vector(-88, 17, 0), Vector(0, 0, 1), 3), False)
sketch10.addConstraint([
    Sketcher.Constraint("Diameter", 0, 6.0),
    Sketcher.Constraint("DistanceX", 0, 3, -1, 1, 88.0),
    Sketcher.Constraint("DistanceY", -1, 1, 0, 3, 17.0),
])
pocket8 = body.newObject("PartDesign::Pocket", "Pocket007")
pocket8.Profile = sketch10
pocket8.Length = 10
pocket8.Reversed = True

# Sketch on XZ plane
sketch11 = body.newObject("Sketcher::SketchObject", "Sketch010")
sketch11.AttachmentSupport = (doc.getObject("XZ_Plane"), [""])
sketch11.MapMode = "FlatFace"
sketch11.AttachmentOffset = App.Placement(Vector(0, 0, -100), App.Rotation())
sketch11.addGeometry([
    Part.Circle(Vector(-162.5, 16, 0), Vector(0, 0, 1), 3),
    Part.Circle(Vector(162.5, 16, 0), Vector(0, 0, 1), 3),
], False)
sketch11.addConstraint([
    Sketcher.Constraint("Equal", 0, 1),
    Sketcher.Constraint("Symmetric", 0, 3, 1, 3, -2),
    Sketcher.Constraint("Diameter", 0, 6.0),
    Sketcher.Constraint("DistanceY", -1, 1, 0, 3, 16.0),
    Sketcher.Constraint("DistanceX", 0, 3, 1, 3, 325.0),
])
pocket9 = body.newObject("PartDesign::Pocket", "Pocket008")
pocket9.Profile = sketch11
pocket9.Length = 90

# Sketch on XZ plane
sketch12 = body.newObject("Sketcher::SketchObject", "Sketch011")
sketch12.AttachmentSupport = (doc.getObject("XZ_Plane"), [""])
sketch12.MapMode = "FlatFace"
sketch12.AttachmentOffset = App.Placement(Vector(0, 0, 100), App.Rotation())
sketch12.addGeometry(Part.Circle(Vector(-138, 17, 0), Vector(0, 0, 1), 3), False)
sketch12.addConstraint([
    Sketcher.Constraint("Diameter", 0, 6.0),
    Sketcher.Constraint("DistanceX", 0, 3, -1, 1, 138.0),
    Sketcher.Constraint("DistanceY", -1, 1, 0, 3, 17.0),
])
pocket10 = body.newObject("PartDesign::Pocket", "Pocket009")
pocket10.Profile = sketch12
pocket10.Length = 5

# Sketch on XZ plane
sketch13 = body.newObject("Sketcher::SketchObject", "Sketch012")
sketch13.AttachmentSupport = (doc.getObject("XZ_Plane"), [""])
sketch13.MapMode = "FlatFace"
sketch13.AttachmentOffset = App.Placement(Vector(0, 0, 100), App.Rotation())
sketch13.addGeometry(Part.Circle(Vector(138, 17, 0), Vector(0, 0, 1), 3), False)
sketch13.addConstraint([
    Sketcher.Constraint("Diameter", 0, 6.0),
    Sketcher.Constraint("DistanceX", -1, 1, 0, 3, 138.0),
    Sketcher.Constraint("DistanceY", -1, 1, 0, 3, 17.0),
])
pocket11 = body.newObject("PartDesign::Pocket", "Pocket010")
pocket11.Profile = sketch13
pocket11.Length = 5

doc.recompute()
